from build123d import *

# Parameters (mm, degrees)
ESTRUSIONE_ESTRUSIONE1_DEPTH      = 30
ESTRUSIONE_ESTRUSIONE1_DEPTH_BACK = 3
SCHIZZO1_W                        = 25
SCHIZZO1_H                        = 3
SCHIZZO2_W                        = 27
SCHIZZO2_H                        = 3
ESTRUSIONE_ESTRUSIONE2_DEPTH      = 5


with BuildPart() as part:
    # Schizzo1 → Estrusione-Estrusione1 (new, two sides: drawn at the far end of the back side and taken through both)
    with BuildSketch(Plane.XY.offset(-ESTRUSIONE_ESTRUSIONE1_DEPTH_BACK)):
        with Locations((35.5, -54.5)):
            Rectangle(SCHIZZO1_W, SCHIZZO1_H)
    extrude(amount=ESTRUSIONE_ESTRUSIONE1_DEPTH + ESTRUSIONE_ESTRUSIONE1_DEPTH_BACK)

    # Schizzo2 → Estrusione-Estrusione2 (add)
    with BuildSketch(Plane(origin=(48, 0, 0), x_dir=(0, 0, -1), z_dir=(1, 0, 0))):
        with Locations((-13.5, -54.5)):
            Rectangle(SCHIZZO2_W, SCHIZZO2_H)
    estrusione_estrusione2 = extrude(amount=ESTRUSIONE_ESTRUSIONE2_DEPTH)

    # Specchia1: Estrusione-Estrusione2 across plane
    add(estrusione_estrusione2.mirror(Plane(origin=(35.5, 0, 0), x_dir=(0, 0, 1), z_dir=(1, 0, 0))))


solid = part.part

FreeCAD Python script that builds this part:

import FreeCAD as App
import Part
import Sketcher
from FreeCAD import Vector


def add_polygon(sketch, points):
    """Adds a closed chain of lines whose ends are joined by coincident constraints."""
    first, n = sketch.GeometryCount, len(points)
    for a, b in zip(points, points[1:] + points[:1]):
        sketch.addGeometry(Part.LineSegment(App.Vector(*a, 0), App.Vector(*b, 0)), False)
    for i in range(n):
        sketch.addConstraint(Sketcher.Constraint("Coincident", first + i, 2, first + (i + 1) % n, 1))

doc = App.newDocument("Part")
body = doc.addObject("PartDesign::Body", "Body")

# Sketch on XY plane
sketch1 = body.newObject("Sketcher::SketchObject", "Sketch")
sketch1.AttachmentSupport = (doc.getObject("XY_Plane"), [""])
sketch1.MapMode = "FlatFace"
add_polygon(sketch1, [(23, -53), (23, -56), (48, -56), (48, -53)])  # lines 0-3
sketch1.addConstraint(Sketcher.Constraint("Vertical", 0))
sketch1.addConstraint(Sketcher.Constraint("Horizontal", 1))
sketch1.addConstraint(Sketcher.Constraint("Vertical", 2))
sketch1.addConstraint(Sketcher.Constraint("Horizontal", 3))
sketch1.addConstraint(Sketcher.Constraint("DistanceX", 1, 1, 1, 2, 25.0))
sketch1.addConstraint(Sketcher.Constraint("DistanceY", 0, 2, 0, 1, 3.0))
sketch1.addConstraint(Sketcher.Constraint("DistanceX", -1, 1, 0, 2, 23.0))
sketch1.addConstraint(Sketcher.Constraint("DistanceY", 0, 2, -1, 1, 56.0))
pad1 = body.newObject("PartDesign::Pad", "Pad")
pad1.Profile = sketch1
pad1.Type = "TwoLengths"
pad1.Length = 30
pad1.Length2 = 3

# Sketch on YZ plane
sketch2 = body.newObject("Sketcher::SketchObject", "Sketch001")
sketch2.AttachmentSupport = (doc.getObject("YZ_Plane"), [""])
sketch2.MapMode = "FlatFace"
sketch2.AttachmentOffset = App.Placement(Vector(0, 0, 48), App.Rotation())
add_polygon(sketch2, [(-53, 27), (-56, 27), (-56, 0), (-53, 0)])  # lines 0-3
sketch2.addConstraint(Sketcher.Constraint("Horizontal", 0))
sketch2.addConstraint(Sketcher.Constraint("Vertical", 1))
sketch2.addConstraint(Sketcher.Constraint("Horizontal", 2))
sketch2.addConstraint(Sketcher.Constraint("Vertical", 3))
sketch2.addConstraint(Sketcher.Constraint("PointOnObject", 1, 2, -1))
sketch2.addConstraint(Sketcher.Constraint("DistanceX", 0, 2, 0, 1, 3.0))
sketch2.addConstraint(Sketcher.Constraint("DistanceY", 1, 2, 1, 1, 27.0))
sketch2.addConstraint(Sketcher.Constraint("DistanceX", 0, 2, -1, 1, 56.0))
pad2 = body.newObject("PartDesign::Pad", "Pad001")
pad2.Profile = sketch2
pad2.Length = 5
doc.recompute()

datumplane = body.newObject("PartDesign::Plane", "DatumPlane")
datumplane.AttachmentSupport = (doc.getObject("YZ_Plane"), [""])
datumplane.MapMode = "FlatFace"
datumplane.AttachmentOffset = App.Placement(Vector(0, 0, 35.5), App.Rotation())
mirrored = body.newObject("PartDesign::Mirrored", "Mirrored")
mirrored.Originals = [pad2]
mirrored.MirrorPlane = (datumplane, [""])
body.Tip = mirrored

doc.recompute()
